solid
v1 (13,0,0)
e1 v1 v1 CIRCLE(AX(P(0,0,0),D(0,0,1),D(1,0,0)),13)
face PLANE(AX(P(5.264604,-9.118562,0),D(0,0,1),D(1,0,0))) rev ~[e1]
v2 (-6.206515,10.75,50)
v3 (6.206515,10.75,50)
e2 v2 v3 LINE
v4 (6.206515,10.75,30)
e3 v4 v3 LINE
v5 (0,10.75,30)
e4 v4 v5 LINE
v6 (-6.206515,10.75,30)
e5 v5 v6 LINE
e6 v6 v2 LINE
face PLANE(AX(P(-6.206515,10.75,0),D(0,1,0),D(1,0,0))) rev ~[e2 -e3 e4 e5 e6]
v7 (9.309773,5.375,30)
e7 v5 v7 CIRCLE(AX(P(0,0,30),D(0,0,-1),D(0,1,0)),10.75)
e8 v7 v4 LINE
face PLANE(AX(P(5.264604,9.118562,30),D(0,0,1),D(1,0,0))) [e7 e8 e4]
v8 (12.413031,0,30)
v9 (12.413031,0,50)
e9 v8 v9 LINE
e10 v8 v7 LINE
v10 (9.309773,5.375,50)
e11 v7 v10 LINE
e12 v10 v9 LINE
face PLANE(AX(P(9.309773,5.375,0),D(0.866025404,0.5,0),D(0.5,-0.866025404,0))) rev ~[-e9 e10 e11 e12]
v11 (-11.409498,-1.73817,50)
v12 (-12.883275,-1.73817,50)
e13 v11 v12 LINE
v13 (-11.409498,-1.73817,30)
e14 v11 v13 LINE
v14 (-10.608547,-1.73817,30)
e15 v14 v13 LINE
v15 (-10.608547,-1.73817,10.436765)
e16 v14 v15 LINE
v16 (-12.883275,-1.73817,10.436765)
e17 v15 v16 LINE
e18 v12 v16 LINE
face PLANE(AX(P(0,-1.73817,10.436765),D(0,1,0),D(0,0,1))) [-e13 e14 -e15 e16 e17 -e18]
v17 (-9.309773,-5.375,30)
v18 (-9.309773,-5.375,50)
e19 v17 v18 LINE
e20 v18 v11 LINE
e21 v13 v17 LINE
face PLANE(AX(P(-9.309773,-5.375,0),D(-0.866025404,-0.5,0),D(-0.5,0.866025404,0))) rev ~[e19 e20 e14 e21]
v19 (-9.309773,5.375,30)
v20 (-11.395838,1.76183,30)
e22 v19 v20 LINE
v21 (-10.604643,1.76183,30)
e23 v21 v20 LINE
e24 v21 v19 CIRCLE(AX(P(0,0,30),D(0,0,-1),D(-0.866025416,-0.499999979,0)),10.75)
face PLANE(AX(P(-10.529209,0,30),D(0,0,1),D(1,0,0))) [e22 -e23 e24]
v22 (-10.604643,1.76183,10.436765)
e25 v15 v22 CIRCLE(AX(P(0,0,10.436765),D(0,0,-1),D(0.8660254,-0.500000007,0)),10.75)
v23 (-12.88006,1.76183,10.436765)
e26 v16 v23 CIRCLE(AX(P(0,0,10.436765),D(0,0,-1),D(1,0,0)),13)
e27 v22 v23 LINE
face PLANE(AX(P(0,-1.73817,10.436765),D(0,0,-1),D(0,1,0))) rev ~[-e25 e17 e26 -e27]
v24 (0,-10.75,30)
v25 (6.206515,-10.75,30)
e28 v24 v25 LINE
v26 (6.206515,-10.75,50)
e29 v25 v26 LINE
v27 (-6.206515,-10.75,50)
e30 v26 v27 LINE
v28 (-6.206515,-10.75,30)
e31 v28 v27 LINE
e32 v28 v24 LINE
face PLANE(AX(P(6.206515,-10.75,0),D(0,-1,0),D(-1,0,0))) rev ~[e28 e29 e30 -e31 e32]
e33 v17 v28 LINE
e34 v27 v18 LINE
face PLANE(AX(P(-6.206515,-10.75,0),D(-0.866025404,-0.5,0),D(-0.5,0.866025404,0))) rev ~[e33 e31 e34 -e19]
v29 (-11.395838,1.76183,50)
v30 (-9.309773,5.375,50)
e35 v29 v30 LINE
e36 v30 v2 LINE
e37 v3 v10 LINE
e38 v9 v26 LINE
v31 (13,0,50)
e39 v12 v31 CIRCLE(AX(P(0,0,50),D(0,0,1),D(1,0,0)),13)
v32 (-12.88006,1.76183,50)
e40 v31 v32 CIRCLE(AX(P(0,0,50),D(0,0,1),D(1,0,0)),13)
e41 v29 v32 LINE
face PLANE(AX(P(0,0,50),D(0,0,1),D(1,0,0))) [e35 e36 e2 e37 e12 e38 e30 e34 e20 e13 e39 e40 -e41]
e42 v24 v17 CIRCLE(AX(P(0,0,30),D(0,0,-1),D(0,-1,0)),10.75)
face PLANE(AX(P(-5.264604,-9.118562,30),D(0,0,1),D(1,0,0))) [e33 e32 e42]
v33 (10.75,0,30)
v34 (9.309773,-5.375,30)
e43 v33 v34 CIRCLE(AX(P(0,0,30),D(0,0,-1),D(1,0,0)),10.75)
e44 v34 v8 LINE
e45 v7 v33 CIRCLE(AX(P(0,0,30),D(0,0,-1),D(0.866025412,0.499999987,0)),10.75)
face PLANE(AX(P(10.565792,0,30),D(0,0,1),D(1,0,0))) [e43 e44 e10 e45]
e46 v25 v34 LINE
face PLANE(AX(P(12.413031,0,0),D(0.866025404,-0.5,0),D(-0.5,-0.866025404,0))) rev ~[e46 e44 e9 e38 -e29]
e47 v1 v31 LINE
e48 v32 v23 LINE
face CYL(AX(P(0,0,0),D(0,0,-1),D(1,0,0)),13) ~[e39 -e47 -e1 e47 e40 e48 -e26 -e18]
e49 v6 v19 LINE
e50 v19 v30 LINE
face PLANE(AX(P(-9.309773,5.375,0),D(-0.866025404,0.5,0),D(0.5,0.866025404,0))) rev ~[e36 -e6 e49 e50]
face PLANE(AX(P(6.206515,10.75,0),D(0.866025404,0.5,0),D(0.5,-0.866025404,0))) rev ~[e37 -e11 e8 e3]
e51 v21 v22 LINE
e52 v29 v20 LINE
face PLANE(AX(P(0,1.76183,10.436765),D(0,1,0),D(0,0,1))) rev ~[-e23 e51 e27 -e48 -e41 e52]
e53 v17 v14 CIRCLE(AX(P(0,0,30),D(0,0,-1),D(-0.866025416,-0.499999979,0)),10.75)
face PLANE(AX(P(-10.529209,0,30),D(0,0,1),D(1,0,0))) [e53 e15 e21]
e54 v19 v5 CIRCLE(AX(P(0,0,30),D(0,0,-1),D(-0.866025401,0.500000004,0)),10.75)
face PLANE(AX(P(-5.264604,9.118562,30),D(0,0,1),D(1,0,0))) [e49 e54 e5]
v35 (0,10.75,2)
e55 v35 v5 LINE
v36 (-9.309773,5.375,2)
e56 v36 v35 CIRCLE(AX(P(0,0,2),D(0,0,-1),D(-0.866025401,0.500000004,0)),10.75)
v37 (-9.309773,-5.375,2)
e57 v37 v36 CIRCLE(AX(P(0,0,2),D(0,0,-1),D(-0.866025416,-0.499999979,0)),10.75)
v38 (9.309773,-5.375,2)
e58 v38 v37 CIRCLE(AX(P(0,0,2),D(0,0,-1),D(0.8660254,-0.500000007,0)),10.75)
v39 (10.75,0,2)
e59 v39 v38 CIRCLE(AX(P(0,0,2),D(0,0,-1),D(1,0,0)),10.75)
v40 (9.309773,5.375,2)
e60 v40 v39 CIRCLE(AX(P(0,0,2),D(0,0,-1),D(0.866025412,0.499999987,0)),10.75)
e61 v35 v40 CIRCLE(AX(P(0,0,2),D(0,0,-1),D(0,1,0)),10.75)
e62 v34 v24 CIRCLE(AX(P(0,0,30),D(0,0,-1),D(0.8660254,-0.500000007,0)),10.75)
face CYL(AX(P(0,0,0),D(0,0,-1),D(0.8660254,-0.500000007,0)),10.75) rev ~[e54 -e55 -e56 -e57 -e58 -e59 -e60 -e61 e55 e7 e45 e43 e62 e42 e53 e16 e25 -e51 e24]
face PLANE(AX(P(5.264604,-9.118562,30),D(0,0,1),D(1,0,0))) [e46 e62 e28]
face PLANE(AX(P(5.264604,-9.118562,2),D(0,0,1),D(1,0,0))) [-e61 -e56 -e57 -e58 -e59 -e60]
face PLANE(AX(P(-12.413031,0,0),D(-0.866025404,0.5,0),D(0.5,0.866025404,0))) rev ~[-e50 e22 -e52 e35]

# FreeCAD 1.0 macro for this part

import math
import FreeCAD as App
import Part
import Sketcher
Q = App.Units.Quantity


def add_polygon(sketch, points):
    """Adds a closed chain of lines whose ends are joined by coincident constraints."""
    first, n = sketch.GeometryCount, len(points)
    for a, b in zip(points, points[1:] + points[:1]):
        sketch.addGeometry(Part.LineSegment(App.Vector(*a, 0), App.Vector(*b, 0)), False)
    for i in range(n):
        sketch.addConstraint(Sketcher.Constraint("Coincident", first + i, 2, first + (i + 1) % n, 1))

doc = App.newDocument("Part")
body = doc.addObject("PartDesign::Body", "Body")

# Sketch on XY plane
sketch1 = doc.addObject("Sketcher::SketchObject", "Sketch")
body.addObject(sketch1)
sketch1.AttachmentSupport = (doc.XY_Plane, [""])
sketch1.MapMode = "FlatFace"
sketch1.addGeometry(Part.Circle(App.Vector(0, 0, 0), App.Vector(0, 0, 1), 13), False)  # 0
add_polygon(sketch1, [(-6, 11), (6, 11), (9, 5), (12, 0), (6, -11), (-6, -11), (-9, -5), (-12, 0), (-9, 5)])  # lines 1-9
sketch1.addConstraint(Sketcher.Constraint("Horizontal", 1))
sketch1.addConstraint(Sketcher.Constraint("Horizontal", 5))
sketch1.addConstraint(Sketcher.Constraint("Coincident", 0, 3, -1, 1))
sketch1.addConstraint(Sketcher.Constraint("Symmetric", 1, 2, 5, 2, -1, 1))
sketch1.addConstraint(Sketcher.Constraint("Symmetric", 2, 2, 6, 2, -1, 1))
sketch1.addConstraint(Sketcher.Constraint("Symmetric", 3, 2, 7, 2, -1, 1))
sketch1.addConstraint(Sketcher.Constraint("Symmetric", 2, 2, 8, 2, -2))
sketch1.addConstraint(Sketcher.Constraint("PointOnObject", 3, 2, -1))
sketch1.addConstraint(Sketcher.Constraint("Parallel", 2, 3))
sketch1.addConstraint(Sketcher.Constraint("Parallel", 4, 8))
sketch1.addConstraint(Sketcher.Constraint("Parallel", 8, 9))
sketch1.addConstraint(Sketcher.Constraint("Equal", 2, 3))
sketch1.addConstraint(Sketcher.Constraint("Diameter", 0, 26.0))
sketch1.addConstraint(Sketcher.Constraint("Angle", 2, Q("-60 deg")))
sketch1.addConstraint(Sketcher.Constraint("DistanceY", 4, 2, 1, 2, 21.5))
sketch1.addConstraint(Sketcher.Constraint("DistanceX", 1, 1, 1, 2, 12.413031))
pad1 = doc.addObject("PartDesign::Pad", "Pad")
body.addObject(pad1)
pad1.Profile = sketch1
pad1.Length = 50

# Sketch on XY plane
sketch2 = doc.addObject("Sketcher::SketchObject", "Sketch001")
body.addObject(sketch2)
sketch2.AttachmentSupport = (doc.XY_Plane, [""])
sketch2.MapMode = "FlatFace"
add_polygon(sketch2, [(6, -11), (12, 0), (9, 5), (6, 11), (-6, 11), (-9, 5), (-12, 0), (-9, -5), (-6, -11)])  # lines 0-8
sketch2.addConstraint(Sketcher.Constraint("Horizontal", 3))
sketch2.addConstraint(Sketcher.Constraint("Horizontal", 8))
sketch2.addConstraint(Sketcher.Constraint("Symmetric", 0, 2, 5, 2, -1, 1))
sketch2.addConstraint(Sketcher.Constraint("Symmetric", 1, 2, 6, 2, -1, 1))
sketch2.addConstraint(Sketcher.Constraint("Symmetric", 2, 2, 7, 2, -1, 1))
sketch2.addConstraint(Sketcher.Constraint("Symmetric", 1, 2, 4, 2, -2))
sketch2.addConstraint(Sketcher.Constraint("PointOnObject", 0, 2, -1))
sketch2.addConstraint(Sketcher.Constraint("Parallel", 1, 2))
sketch2.addConstraint(Sketcher.Constraint("Parallel", 0, 4))
sketch2.addConstraint(Sketcher.Constraint("Parallel", 4, 5))
sketch2.addConstraint(Sketcher.Constraint("Equal", 1, 2))
sketch2.addConstraint(Sketcher.Constraint("Angle", 0, Q("60 deg")))
sketch2.addConstraint(Sketcher.Constraint("DistanceY", 7, 2, 3, 2, 21.5))
sketch2.addConstraint(Sketcher.Constraint("DistanceX", 3, 2, 3, 1, 12.413031))
pad2 = doc.addObject("PartDesign::Pad", "Pad001")
body.addObject(pad2)
pad2.Profile = sketch2
pad2.Length = 2

# Sketch on XY plane
sketch3 = doc.addObject("Sketcher::SketchObject", "Sketch002")
body.addObject(sketch3)
sketch3.AttachmentSupport = (doc.XY_Plane, [""])
sketch3.MapMode = "FlatFace"
sketch3.addGeometry(Part.ArcOfCircle(Part.Circle(App.Vector(0, 0, 0), App.Vector(0, 0, 1), 11), math.radians(30), math.radians(90)), False)
sketch3.addGeometry(Part.LineSegment(App.Vector(9, 5, 0), App.Vector(6, 11, 0)), False)
sketch3.addGeometry(Part.LineSegment(App.Vector(6, 11, 0), App.Vector(0, 11, 0)), False)
sketch3.addGeometry(Part.ArcOfCircle(Part.Circle(App.Vector(0, 0, 0), App.Vector(0, 0, 1), 11), math.radians(90), math.radians(150)), False)
sketch3.addGeometry(Part.LineSegment(App.Vector(0, 11, 0), App.Vector(-6, 11, 0)), False)
sketch3.addGeometry(Part.LineSegment(App.Vector(-6, 11, 0), App.Vector(-9, 5, 0)), False)
sketch3.addGeometry(Part.ArcOfCircle(Part.Circle(App.Vector(0, 0, 0), App.Vector(0, 0, 1), 11), math.radians(150), math.radians(210)), False)
sketch3.addGeometry(Part.LineSegment(App.Vector(-9, 5, 0), App.Vector(-12, 0, 0)), False)
sketch3.addGeometry(Part.LineSegment(App.Vector(-12, 0, 0), App.Vector(-9, -5, 0)), False)
sketch3.addGeometry(Part.LineSegment(App.Vector(-6, -11, 0), App.Vector(0, -11, 0)), False)
sketch3.addGeometry(Part.ArcOfCircle(Part.Circle(App.Vector(0, 0, 0), App.Vector(0, 0, 1), 11), math.radians(-150), math.radians(-90)), False)
sketch3.addGeometry(Part.LineSegment(App.Vector(-9, -5, 0), App.Vector(-6, -11, 0)), False)
sketch3.addGeometry(Part.LineSegment(App.Vector(6, -11, 0), App.Vector(9, -5, 0)), False)
sketch3.addGeometry(Part.ArcOfCircle(Part.Circle(App.Vector(0, 0, 0), App.Vector(0, 0, 1), 11), math.radians(-90), math.radians(-30)), False)
sketch3.addGeometry(Part.LineSegment(App.Vector(0, -11, 0), App.Vector(6, -11, 0)), False)
sketch3.addGeometry(Part.ArcOfCircle(Part.Circle(App.Vector(0, 0, 0), App.Vector(0, 0, 1), 11), math.radians(0), math.radians(30)), False)
sketch3.addGeometry(Part.ArcOfCircle(Part.Circle(App.Vector(0, 0, 0), App.Vector(0, 0, 1), 11), math.radians(-30), math.radians(0)), False)
sketch3.addGeometry(Part.LineSegment(App.Vector(9, -5, 0), App.Vector(12, 0, 0)), False)
sketch3.addGeometry(Part.LineSegment(App.Vector(12, 0, 0), App.Vector(9, 5, 0)), False)
sketch3.addConstraint(Sketcher.Constraint("Tangent", 0, 1, 1, 1))
sketch3.addConstraint(Sketcher.Constraint("Coincident", 1, 2, 2, 1))
sketch3.addConstraint(Sketcher.Constraint("Tangent", 2, 2, 0, 2))
sketch3.addConstraint(Sketcher.Constraint("Tangent", 3, 1, 4, 1))
sketch3.addConstraint(Sketcher.Constraint("Coincident", 4, 2, 5, 1))
sketch3.addConstraint(Sketcher.Constraint("Tangent", 5, 2, 3, 2))
sketch3.addConstraint(Sketcher.Constraint("Tangent", 6, 1, 7, 1))
sketch3.addConstraint(Sketcher.Constraint("Coincident", 7, 2, 8, 1))
sketch3.addConstraint(Sketcher.Constraint("Tangent", 8, 2, 6, 2))
sketch3.addConstraint(Sketcher.Constraint("Tangent", 9, 2, 10, 2))
sketch3.addConstraint(Sketcher.Constraint("Tangent", 10, 1, 11, 1))
sketch3.addConstraint(Sketcher.Constraint("Coincident", 11, 2, 9, 1))
sketch3.addConstraint(Sketcher.Constraint("Tangent", 12, 2, 13, 2))
sketch3.addConstraint(Sketcher.Constraint("Tangent", 13, 1, 14, 1))
sketch3.addConstraint(Sketcher.Constraint("Coincident", 14, 2, 12, 1))
sketch3.addConstraint(Sketcher.Constraint("Tangent", 15, 1, 16, 2))
sketch3.addConstraint(Sketcher.Constraint("Tangent", 16, 1, 17, 1))
sketch3.addConstraint(Sketcher.Constraint("Coincident", 17, 2, 18, 1))
sketch3.addConstraint(Sketcher.Constraint("Tangent", 18, 2, 15, 2))
sketch3.addConstraint(Sketcher.Constraint("Horizontal", 2))
sketch3.addConstraint(Sketcher.Constraint("Horizontal", 4))
sketch3.addConstraint(Sketcher.Constraint("Horizontal", 9))
sketch3.addConstraint(Sketcher.Constraint("Horizontal", 14))
sketch3.addConstraint(Sketcher.Constraint("Coincident", 0, 3, -1, 1))
sketch3.addConstraint(Sketcher.Constraint("Coincident", 3, 3, -1, 1))
sketch3.addConstraint(Sketcher.Constraint("Coincident", 6, 3, -1, 1))
sketch3.addConstraint(Sketcher.Constraint("Coincident", 10, 3, -1, 1))
sketch3.addConstraint(Sketcher.Constraint("Coincident", 13, 3, -1, 1))
sketch3.addConstraint(Sketcher.Constraint("Coincident", 15, 3, -1, 1))
sketch3.addConstraint(Sketcher.Constraint("Coincident", 6, 1, 5, 2))
sketch3.addConstraint(Sketcher.Constraint("Coincident", 10, 1, 8, 2))
sketch3.addConstraint(Sketcher.Constraint("Coincident", 16, 1, 12, 2))
sketch3.addConstraint(Sketcher.Constraint("Coincident", 18, 2, 0, 1))
sketch3.addConstraint(Sketcher.Constraint("Equal", 0, 3))
sketch3.addConstraint(Sketcher.Constraint("Equal", 10, 13))
sketch3.addConstraint(Sketcher.Constraint("Symmetric", 7, 2, 17, 2, -1, 1))
sketch3.addConstraint(Sketcher.Constraint("PointOnObject", 7, 2, -1))
sketch3.addConstraint(Sketcher.Constraint("PointOnObject", 15, 1, -1))
sketch3.addConstraint(Sketcher.Constraint("Equal", 5, 7))
sketch3.addConstraint(Sketcher.Constraint("Radius", 0, 10.75))
pad3 = doc.addObject("PartDesign::Pad", "Pad002")
body.addObject(pad3)
pad3.Profile = sketch3
pad3.Length = 30

# Sketch on YZ plane
sketch4 = doc.addObject("Sketcher::SketchObject", "Sketch003")
body.addObject(sketch4)
sketch4.AttachmentSupport = (doc.YZ_Plane, [""])
sketch4.MapMode = "FlatFace"
add_polygon(sketch4, [(-1.7, 50.4), (-1.7, 10.4), (1.8, 10.4), (1.8, 50.4)])  # lines 0-3
sketch4.addConstraint(Sketcher.Constraint("Vertical", 0))
sketch4.addConstraint(Sketcher.Constraint("Horizontal", 1))
sketch4.addConstraint(Sketcher.Constraint("Vertical", 2))
sketch4.addConstraint(Sketcher.Constraint("Horizontal", 3))
sketch4.addConstraint(Sketcher.Constraint("DistanceY", 0, 2, 0, 1, 40.0))
sketch4.addConstraint(Sketcher.Constraint("DistanceX", 1, 1, 1, 2, 3.5))
sketch4.addConstraint(Sketcher.Constraint("DistanceX", 0, 2, -1, 1, 1.73817))
sketch4.addConstraint(Sketcher.Constraint("DistanceY", -1, 1, 0, 2, 10.436765))
pocket1 = doc.addObject("PartDesign::Pocket", "Pocket")
body.addObject(pocket1)
pocket1.Profile = sketch4
pocket1.Length = 25

doc.recompute()
